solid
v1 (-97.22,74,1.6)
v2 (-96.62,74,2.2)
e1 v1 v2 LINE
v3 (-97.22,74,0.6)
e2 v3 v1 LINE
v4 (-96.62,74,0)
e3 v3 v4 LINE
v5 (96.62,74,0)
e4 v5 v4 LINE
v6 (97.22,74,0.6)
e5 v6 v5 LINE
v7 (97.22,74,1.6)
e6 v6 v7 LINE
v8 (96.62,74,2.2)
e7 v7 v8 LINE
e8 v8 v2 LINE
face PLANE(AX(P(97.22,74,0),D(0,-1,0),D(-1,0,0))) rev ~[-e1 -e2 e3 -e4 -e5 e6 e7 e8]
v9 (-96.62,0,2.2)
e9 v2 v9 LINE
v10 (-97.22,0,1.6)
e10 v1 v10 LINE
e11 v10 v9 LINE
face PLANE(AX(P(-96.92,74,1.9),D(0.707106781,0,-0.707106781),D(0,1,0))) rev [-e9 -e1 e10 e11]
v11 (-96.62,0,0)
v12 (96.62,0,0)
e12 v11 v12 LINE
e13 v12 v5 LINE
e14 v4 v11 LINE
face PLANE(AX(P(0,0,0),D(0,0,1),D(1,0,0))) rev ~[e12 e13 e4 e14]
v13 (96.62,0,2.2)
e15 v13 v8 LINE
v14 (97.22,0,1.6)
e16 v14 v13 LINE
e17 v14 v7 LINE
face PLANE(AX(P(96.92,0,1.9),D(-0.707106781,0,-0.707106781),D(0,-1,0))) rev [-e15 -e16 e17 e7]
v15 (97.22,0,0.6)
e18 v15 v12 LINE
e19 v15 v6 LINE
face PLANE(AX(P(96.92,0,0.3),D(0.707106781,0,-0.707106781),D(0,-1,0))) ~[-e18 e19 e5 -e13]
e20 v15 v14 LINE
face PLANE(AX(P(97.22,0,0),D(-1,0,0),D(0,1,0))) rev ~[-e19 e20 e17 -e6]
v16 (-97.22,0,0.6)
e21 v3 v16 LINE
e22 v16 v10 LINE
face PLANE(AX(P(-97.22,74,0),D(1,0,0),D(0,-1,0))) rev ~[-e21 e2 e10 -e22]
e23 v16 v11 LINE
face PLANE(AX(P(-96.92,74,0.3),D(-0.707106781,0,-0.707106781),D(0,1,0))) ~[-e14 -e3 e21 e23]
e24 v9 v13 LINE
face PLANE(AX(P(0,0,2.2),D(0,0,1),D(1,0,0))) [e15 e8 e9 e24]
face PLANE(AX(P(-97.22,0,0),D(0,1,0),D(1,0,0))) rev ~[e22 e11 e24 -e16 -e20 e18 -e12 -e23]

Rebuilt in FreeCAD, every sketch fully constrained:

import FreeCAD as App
import Part
import Sketcher

V = App.Vector
Q = App.Units.Quantity


def edges_at(feature, points):
    """Names of the edges that pass closest to the given points."""
    edges = feature.Shape.Edges
    near = lambda p: min(range(len(edges)), key=lambda i: edges[i].distToShape(Part.Vertex(*p))[0])
    return sorted({f"Edge{near(p) + 1}" for p in points})


def add_polygon(sketch, points):
    """Adds a closed chain of lines whose ends are joined by coincident constraints."""
    first, n = sketch.GeometryCount, len(points)
    for a, b in zip(points, points[1:] + points[:1]):
        sketch.addGeometry(Part.LineSegment(App.Vector(*a, 0), App.Vector(*b, 0)), False)
    for i in range(n):
        sketch.addConstraint(Sketcher.Constraint("Coincident", first + i, 2, first + (i + 1) % n, 1))

doc = App.newDocument("Part")
params = doc.addObject("Spreadsheet::Sheet", "Params")
for row, (alias, value) in enumerate([
    ("sketch1_height", "74 mm"),
    ("sketch1_width", "194.44 mm"),
    ("pad1_length", "2.2 mm"),
    ("chamfer_size", "0.6 mm"),
], start=1):
    params.set(f"A{row}", alias)
    params.set(f"B{row}", "=" + value)
    params.setAlias(f"B{row}", alias)

body = doc.addObject("PartDesign::Body", "Body")

# Sketch on XY plane
sketch1 = body.newObject("Sketcher::SketchObject", "Sketch")
sketch1.AttachmentSupport = (doc.getObject("XY_Plane"), [""])
sketch1.MapMode = "FlatFace"
add_polygon(sketch1, [(-97, 74), (-97, 0), (97, 0), (97, 74)])  # lines 0-3
sketch1.addConstraint(Sketcher.Constraint("Vertical", 0))
sketch1.addConstraint(Sketcher.Constraint("Horizontal", 1))
sketch1.addConstraint(Sketcher.Constraint("Vertical", 2))
sketch1.addConstraint(Sketcher.Constraint("Horizontal", 3))
sketch1.addConstraint(Sketcher.Constraint("Symmetric", 0, 2, 1, 2, -1, 1))
sketch1.addConstraint(Sketcher.Constraint("DistanceY", 0, 2, 0, 1, Q("74 mm")))
sketch1.addConstraint(Sketcher.Constraint("DistanceX", 1, 1, 1, 2, Q("194.44 mm")))
sketch1.setExpression("Constraints[9]", "Params.sketch1_height")
sketch1.setExpression("Constraints[10]", "Params.sketch1_width")
pad1 = body.newObject("PartDesign::Pad", "Pad")
pad1.Profile = sketch1
pad1.setExpression("Length", "Params.pad1_length")
doc.recompute()

chamfer = body.newObject("PartDesign::Chamfer", "Chamfer")
chamfer.Base = (pad1, edges_at(pad1, [
    (97.22, 37, 0),
    (97.22, 37, 2.2),
    (-97.22, 37, 0),
    (-97.22, 37, 2.2),
]))
chamfer.setExpression("Size", "Params.chamfer_size")

doc.recompute()
